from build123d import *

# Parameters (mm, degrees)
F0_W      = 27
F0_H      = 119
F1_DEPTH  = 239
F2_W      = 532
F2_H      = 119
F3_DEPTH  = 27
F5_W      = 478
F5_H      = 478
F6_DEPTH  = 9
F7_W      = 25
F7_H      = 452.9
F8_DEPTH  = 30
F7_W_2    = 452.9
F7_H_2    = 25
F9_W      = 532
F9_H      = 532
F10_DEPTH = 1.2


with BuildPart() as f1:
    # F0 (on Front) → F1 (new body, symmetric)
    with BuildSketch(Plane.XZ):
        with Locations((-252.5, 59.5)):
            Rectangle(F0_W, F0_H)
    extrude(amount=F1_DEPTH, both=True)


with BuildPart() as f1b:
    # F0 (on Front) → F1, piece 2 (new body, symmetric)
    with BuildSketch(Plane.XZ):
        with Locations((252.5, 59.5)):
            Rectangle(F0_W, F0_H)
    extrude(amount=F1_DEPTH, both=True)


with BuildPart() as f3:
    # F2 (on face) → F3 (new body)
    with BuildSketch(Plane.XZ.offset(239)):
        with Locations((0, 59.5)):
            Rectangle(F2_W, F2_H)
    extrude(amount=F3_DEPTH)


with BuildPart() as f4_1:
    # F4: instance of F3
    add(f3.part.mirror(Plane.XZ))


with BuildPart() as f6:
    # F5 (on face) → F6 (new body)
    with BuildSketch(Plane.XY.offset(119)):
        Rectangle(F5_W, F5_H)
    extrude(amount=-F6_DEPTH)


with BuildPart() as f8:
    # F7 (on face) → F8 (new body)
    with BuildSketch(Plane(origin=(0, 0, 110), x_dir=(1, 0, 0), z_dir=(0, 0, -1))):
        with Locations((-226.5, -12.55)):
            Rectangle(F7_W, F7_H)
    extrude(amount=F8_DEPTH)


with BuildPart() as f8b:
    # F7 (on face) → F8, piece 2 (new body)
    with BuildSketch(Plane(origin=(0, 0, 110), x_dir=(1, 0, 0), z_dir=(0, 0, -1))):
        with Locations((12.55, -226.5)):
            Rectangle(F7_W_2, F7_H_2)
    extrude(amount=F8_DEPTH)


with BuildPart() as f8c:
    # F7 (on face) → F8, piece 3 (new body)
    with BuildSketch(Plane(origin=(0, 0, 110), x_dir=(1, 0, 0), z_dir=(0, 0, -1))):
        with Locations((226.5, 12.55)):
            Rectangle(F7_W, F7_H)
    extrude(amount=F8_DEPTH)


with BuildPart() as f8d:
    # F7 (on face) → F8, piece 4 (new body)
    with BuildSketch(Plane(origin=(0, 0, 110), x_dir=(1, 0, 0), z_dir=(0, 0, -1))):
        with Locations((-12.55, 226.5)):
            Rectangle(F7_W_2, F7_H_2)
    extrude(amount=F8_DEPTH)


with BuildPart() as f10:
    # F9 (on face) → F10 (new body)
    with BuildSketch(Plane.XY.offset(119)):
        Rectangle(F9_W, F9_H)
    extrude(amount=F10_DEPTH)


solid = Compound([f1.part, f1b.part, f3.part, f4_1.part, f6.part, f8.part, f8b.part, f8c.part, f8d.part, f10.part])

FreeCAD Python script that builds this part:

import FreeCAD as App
import Part
import Sketcher


def add_polygon(sketch, points):
    """Adds a closed chain of lines whose ends are joined by coincident constraints."""
    first, n = sketch.GeometryCount, len(points)
    for a, b in zip(points, points[1:] + points[:1]):
        sketch.addGeometry(Part.LineSegment(App.Vector(*a, 0), App.Vector(*b, 0)), False)
    for i in range(n):
        sketch.addConstraint(Sketcher.Constraint("Coincident", first + i, 2, first + (i + 1) % n, 1))

doc = App.newDocument("Part")
body = doc.addObject("PartDesign::Body", "Body")

# Sketch on XZ plane
sketch1 = doc.addObject("Sketcher::SketchObject", "Sketch")
body.addObject(sketch1)
sketch1.AttachmentSupport = (doc.XZ_Plane, [""])
sketch1.MapMode = "FlatFace"
add_polygon(sketch1, [(-266, 119), (-266, 0), (-239, 0), (-239, 119)])  # lines 0-3
sketch1.addConstraint([
    Sketcher.Constraint("Vertical", 0),
    Sketcher.Constraint("Horizontal", 1),
    Sketcher.Constraint("Vertical", 2),
    Sketcher.Constraint("Horizontal", 3),
    Sketcher.Constraint("PointOnObject", 0, 2, -1),
    Sketcher.Constraint("DistanceX", 1, 1, 1, 2, 27.0),
    Sketcher.Constraint("DistanceY", 0, 2, 0, 1, 119.0),
    Sketcher.Constraint("DistanceX", 0, 2, -1, 1, 266.0),
])
pad1 = doc.addObject("PartDesign::Pad", "Pad")
body.addObject(pad1)
pad1.Profile = sketch1
pad1.Length = 478
pad1.Midplane = True
body2 = doc.addObject("PartDesign::Body", "Body001")

# Sketch on XZ plane
sketch2 = doc.addObject("Sketcher::SketchObject", "Sketch001")
body2.addObject(sketch2)
sketch2.AttachmentSupport = (doc.getObject("XZ_Plane001"), [""])
sketch2.MapMode = "FlatFace"
add_polygon(sketch2, [(239, 119), (239, 0), (266, 0), (266, 119)])  # lines 0-3
sketch2.addConstraint([
    Sketcher.Constraint("Vertical", 0),
    Sketcher.Constraint("Horizontal", 1),
    Sketcher.Constraint("Vertical", 2),
    Sketcher.Constraint("Horizontal", 3),
    Sketcher.Constraint("PointOnObject", 0, 2, -1),
    Sketcher.Constraint("DistanceX", 1, 1, 1, 2, 27.0),
    Sketcher.Constraint("DistanceY", 0, 2, 0, 1, 119.0),
    Sketcher.Constraint("DistanceX", -1, 1, 0, 2, 239.0),
])
pad2 = doc.addObject("PartDesign::Pad", "Pad001")
body2.addObject(pad2)
pad2.Profile = sketch2
pad2.Length = 478
pad2.Midplane = True
body3 = doc.addObject("PartDesign::Body", "Body002")

# Sketch on XZ plane
sketch3 = doc.addObject("Sketcher::SketchObject", "Sketch002")
body3.addObject(sketch3)
sketch3.AttachmentSupport = (doc.getObject("XZ_Plane002"), [""])
sketch3.MapMode = "FlatFace"
sketch3.AttachmentOffset = App.Placement(App.Vector(0, 0, 239), App.Rotation())
add_polygon(sketch3, [(-266, 119), (-266, 0), (266, 0), (266, 119)])  # lines 0-3
sketch3.addConstraint([
    Sketcher.Constraint("Vertical", 0),
    Sketcher.Constraint("Horizontal", 1),
    Sketcher.Constraint("Vertical", 2),
    Sketcher.Constraint("Horizontal", 3),
    Sketcher.Constraint("Symmetric", 0, 2, 1, 2, -1, 1),
    Sketcher.Constraint("DistanceX", 1, 1, 1, 2, 532.0),
    Sketcher.Constraint("DistanceY", 0, 2, 0, 1, 119.0),
])
pad3 = doc.addObject("PartDesign::Pad", "Pad002")
body3.addObject(pad3)
pad3.Profile = sketch3
pad3.Length = 27
body4 = doc.addObject("PartDesign::Body", "Body003")
doc.recompute()

mirroring = doc.addObject("Part::Mirroring", "Mirroring")
mirroring.Source = body3
mirroring.Base = App.Vector(0, 0, 0)
mirroring.Normal = App.Vector(0, -1, 0)
body4.BaseFeature = mirroring
doc.recompute()
body5 = doc.addObject("PartDesign::Body", "Body004")

# Sketch on XY plane
sketch4 = doc.addObject("Sketcher::SketchObject", "Sketch003")
body5.addObject(sketch4)
sketch4.AttachmentSupport = (doc.getObject("XY_Plane004"), [""])
sketch4.MapMode = "FlatFace"
sketch4.AttachmentOffset = App.Placement(App.Vector(0, 0, 119), App.Rotation())
add_polygon(sketch4, [(-239, 239), (-239, -239), (239, -239), (239, 239)])  # lines 0-3
sketch4.addConstraint([
    Sketcher.Constraint("Vertical", 0),
    Sketcher.Constraint("Horizontal", 1),
    Sketcher.Constraint("Vertical", 2),
    Sketcher.Constraint("Horizontal", 3),
    Sketcher.Constraint("Symmetric", 0, 2, 2, 2, -1, 1),
    Sketcher.Constraint("Equal", 3, 0),
    Sketcher.Constraint("DistanceX", 1, 1, 1, 2, 478.0),
])
pad4 = doc.addObject("PartDesign::Pad", "Pad003")
body5.addObject(pad4)
pad4.Profile = sketch4
pad4.Length = 9
pad4.Reversed = True
body6 = doc.addObject("PartDesign::Body", "Body005")

# Sketch on XY plane
sketch5 = doc.addObject("Sketcher::SketchObject", "Sketch004")
body6.addObject(sketch5)
sketch5.AttachmentSupport = (doc.getObject("XY_Plane005"), [""])
sketch5.MapMode = "FlatFace"
sketch5.AttachmentOffset = App.Placement(App.Vector(0, 0, 110), App.Rotation())
add_polygon(sketch5, [(-239, -214), (-239, 239), (-214, 239), (-214, -214)])  # lines 0-3
sketch5.addConstraint([
    Sketcher.Constraint("Vertical", 0),
    Sketcher.Constraint("Horizontal", 1),
    Sketcher.Constraint("Vertical", 2),
    Sketcher.Constraint("Horizontal", 3),
    Sketcher.Constraint("DistanceX", 1, 1, 1, 2, 25.0),
    Sketcher.Constraint("DistanceY", 0, 1, 0, 2, 452.9),
    Sketcher.Constraint("DistanceX", 0, 2, -1, 1, 239.0),
    Sketcher.Constraint("DistanceY", -1, 1, 0, 2, 239.0),
])
pad5 = doc.addObject("PartDesign::Pad", "Pad004")
body6.addObject(pad5)
pad5.Profile = sketch5
pad5.Length = 30
pad5.Reversed = True
body7 = doc.addObject("PartDesign::Body", "Body006")

# Sketch on XY plane
sketch6 = doc.addObject("Sketcher::SketchObject", "Sketch005")
body7.addObject(sketch6)
sketch6.AttachmentSupport = (doc.getObject("XY_Plane006"), [""])
sketch6.MapMode = "FlatFace"
sketch6.AttachmentOffset = App.Placement(App.Vector(0, 0, 110), App.Rotation())
add_polygon(sketch6, [(-214, 214), (-214, 239), (239, 239), (239, 214)])  # lines 0-3
sketch6.addConstraint([
    Sketcher.Constraint("Vertical", 0),
    Sketcher.Constraint("Horizontal", 1),
    Sketcher.Constraint("Vertical", 2),
    Sketcher.Constraint("Horizontal", 3),
    Sketcher.Constraint("DistanceY", 0, 1, 0, 2, 25.0),
    Sketcher.Constraint("DistanceX", 1, 1, 1, 2, 452.9),
    Sketcher.Constraint("DistanceY", -1, 1, 0, 2, 239.0),
    Sketcher.Constraint("DistanceX", -1, 1, 1, 2, 239.0),
])
pad6 = doc.addObject("PartDesign::Pad", "Pad005")
body7.addObject(pad6)
pad6.Profile = sketch6
pad6.Length = 30
pad6.Reversed = True
body8 = doc.addObject("PartDesign::Body", "Body007")

# Sketch on XY plane
sketch7 = doc.addObject("Sketcher::SketchObject", "Sketch006")
body8.addObject(sketch7)
sketch7.AttachmentSupport = (doc.getObject("XY_Plane007"), [""])
sketch7.MapMode = "FlatFace"
sketch7.AttachmentOffset = App.Placement(App.Vector(0, 0, 110), App.Rotation())
add_polygon(sketch7, [(214, -239), (214, 214), (239, 214), (239, -239)])  # lines 0-3
sketch7.addConstraint([
    Sketcher.Constraint("Vertical", 0),
    Sketcher.Constraint("Horizontal", 1),
    Sketcher.Constraint("Vertical", 2),
    Sketcher.Constraint("Horizontal", 3),
    Sketcher.Constraint("DistanceX", 1, 1, 1, 2, 25.0),
    Sketcher.Constraint("DistanceY", 0, 1, 0, 2, 452.9),
    Sketcher.Constraint("DistanceX", -1, 1, 0, 2, 214.0),
    Sketcher.Constraint("DistanceY", 2, 2, -1, 1, 239.0),
])
pad7 = doc.addObject("PartDesign::Pad", "Pad006")
body8.addObject(pad7)
pad7.Profile = sketch7
pad7.Length = 30
pad7.Reversed = True
body9 = doc.addObject("PartDesign::Body", "Body008")

# Sketch on XY plane
sketch8 = doc.addObject("Sketcher::SketchObject", "Sketch007")
body9.addObject(sketch8)
sketch8.AttachmentSupport = (doc.getObject("XY_Plane008"), [""])
sketch8.MapMode = "FlatFace"
sketch8.AttachmentOffset = App.Placement(App.Vector(0, 0, 110), App.Rotation())
add_polygon(sketch8, [(-239, -239), (-239, -214), (214, -214), (214, -239)])  # lines 0-3
sketch8.addConstraint([
    Sketcher.Constraint("Vertical", 0),
    Sketcher.Constraint("Horizontal", 1),
    Sketcher.Constraint("Vertical", 2),
    Sketcher.Constraint("Horizontal", 3),
    Sketcher.Constraint("DistanceY", 0, 1, 0, 2, 25.0),
    Sketcher.Constraint("DistanceX", 1, 1, 1, 2, 452.9),
    Sketcher.Constraint("DistanceX", 0, 2, -1, 1, 239.0),
    Sketcher.Constraint("DistanceY", 0, 2, -1, 1, 214.0),
])
pad8 = doc.addObject("PartDesign::Pad", "Pad007")
body9.addObject(pad8)
pad8.Profile = sketch8
pad8.Length = 30
pad8.Reversed = True
body10 = doc.addObject("PartDesign::Body", "Body009")

# Sketch on XY plane
sketch9 = doc.addObject("Sketcher::SketchObject", "Sketch008")
body10.addObject(sketch9)
sketch9.AttachmentSupport = (doc.getObject("XY_Plane009"), [""])
sketch9.MapMode = "FlatFace"
sketch9.AttachmentOffset = App.Placement(App.Vector(0, 0, 119), App.Rotation())
add_polygon(sketch9, [(-266, 266), (-266, -266), (266, -266), (266, 266)])  # lines 0-3
sketch9.addConstraint([
    Sketcher.Constraint("Vertical", 0),
    Sketcher.Constraint("Horizontal", 1),
    Sketcher.Constraint("Vertical", 2),
    Sketcher.Constraint("Horizontal", 3),
    Sketcher.Constraint("Symmetric", 0, 2, 2, 2, -1, 1),
    Sketcher.Constraint("Equal", 3, 0),
    Sketcher.Constraint("DistanceX", 1, 1, 1, 2, 532.0),
])
pad9 = doc.addObject("PartDesign::Pad", "Pad008")
body10.addObject(pad9)
pad9.Profile = sketch9
pad9.Length = 1.2
mirroring.Visibility = False

doc.recompute()
